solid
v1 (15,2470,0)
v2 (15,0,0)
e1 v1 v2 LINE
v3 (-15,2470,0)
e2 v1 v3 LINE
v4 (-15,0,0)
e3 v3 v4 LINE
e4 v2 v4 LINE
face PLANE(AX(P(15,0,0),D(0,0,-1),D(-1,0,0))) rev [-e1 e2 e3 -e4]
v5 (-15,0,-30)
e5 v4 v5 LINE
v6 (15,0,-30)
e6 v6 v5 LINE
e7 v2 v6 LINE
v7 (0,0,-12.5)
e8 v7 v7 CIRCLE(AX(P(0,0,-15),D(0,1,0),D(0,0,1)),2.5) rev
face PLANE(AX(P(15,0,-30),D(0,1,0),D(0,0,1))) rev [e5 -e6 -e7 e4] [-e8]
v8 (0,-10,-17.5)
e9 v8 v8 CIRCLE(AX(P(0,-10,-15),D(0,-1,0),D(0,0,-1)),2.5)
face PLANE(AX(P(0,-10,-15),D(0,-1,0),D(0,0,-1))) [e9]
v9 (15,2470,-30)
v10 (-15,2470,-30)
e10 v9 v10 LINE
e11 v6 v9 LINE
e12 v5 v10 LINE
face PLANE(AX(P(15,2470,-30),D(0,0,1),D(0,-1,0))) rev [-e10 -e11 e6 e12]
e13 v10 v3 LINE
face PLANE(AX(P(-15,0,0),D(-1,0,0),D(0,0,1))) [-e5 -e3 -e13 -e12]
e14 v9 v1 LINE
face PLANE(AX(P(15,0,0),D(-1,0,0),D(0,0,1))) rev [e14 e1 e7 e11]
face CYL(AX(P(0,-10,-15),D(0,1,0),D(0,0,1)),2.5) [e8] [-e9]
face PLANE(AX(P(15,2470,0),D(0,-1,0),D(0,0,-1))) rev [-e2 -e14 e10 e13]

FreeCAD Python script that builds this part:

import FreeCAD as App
import Part
import Sketcher
from FreeCAD import Vector
Q = App.Units.Quantity


def add_polygon(sketch, points):
    """Adds a closed chain of lines whose ends are joined by coincident constraints."""
    first, n = sketch.GeometryCount, len(points)
    for a, b in zip(points, points[1:] + points[:1]):
        sketch.addGeometry(Part.LineSegment(App.Vector(*a, 0), App.Vector(*b, 0)), False)
    for i in range(n):
        sketch.addConstraint(Sketcher.Constraint("Coincident", first + i, 2, first + (i + 1) % n, 1))

doc = App.newDocument("Part")
body = doc.addObject("PartDesign::Body", "Body")

# Sketch on YZ plane
sketch1 = doc.addObject("Sketcher::SketchObject", "Sketch")
body.addObject(sketch1)
sketch1.AttachmentSupport = (doc.YZ_Plane, [""])
sketch1.MapMode = "FlatFace"
add_polygon(sketch1, [(2470, 0), (0, 0), (0, -30), (2470, -30)])  # lines 0-3
sketch1.addConstraint([
    Sketcher.Constraint("Horizontal", 0),
    Sketcher.Constraint("Vertical", 1),
    Sketcher.Constraint("Horizontal", 2),
    Sketcher.Constraint("Vertical", 3),
    Sketcher.Constraint("Coincident", 0, 2, -1, 1),
    Sketcher.Constraint("DistanceX", 0, 2, 0, 1, Q("2470 mm")),
    Sketcher.Constraint("DistanceY", 1, 2, 1, 1, Q("30 mm")),
])
pad1 = doc.addObject("PartDesign::Pad", "Pad")
body.addObject(pad1)
pad1.Profile = sketch1
pad1.Length = 30
pad1.Midplane = True

# Sketch on XZ plane
sketch2 = doc.addObject("Sketcher::SketchObject", "Sketch001")
body.addObject(sketch2)
sketch2.AttachmentSupport = (doc.XZ_Plane, [""])
sketch2.MapMode = "FlatFace"
sketch2.addGeometry(Part.Circle(Vector(0, -15, 0), Vector(0, 0, 1), 2.5), False)
sketch2.addConstraint([
    Sketcher.Constraint("PointOnObject", 0, 3, -2),
    Sketcher.Constraint("Diameter", 0, Q("5 mm")),
    Sketcher.Constraint("DistanceY", 0, 3, -1, 1, Q("15 mm")),
])
pad2 = doc.addObject("PartDesign::Pad", "Pad001")
body.addObject(pad2)
pad2.Profile = sketch2
pad2.Length = 10

doc.recompute()
